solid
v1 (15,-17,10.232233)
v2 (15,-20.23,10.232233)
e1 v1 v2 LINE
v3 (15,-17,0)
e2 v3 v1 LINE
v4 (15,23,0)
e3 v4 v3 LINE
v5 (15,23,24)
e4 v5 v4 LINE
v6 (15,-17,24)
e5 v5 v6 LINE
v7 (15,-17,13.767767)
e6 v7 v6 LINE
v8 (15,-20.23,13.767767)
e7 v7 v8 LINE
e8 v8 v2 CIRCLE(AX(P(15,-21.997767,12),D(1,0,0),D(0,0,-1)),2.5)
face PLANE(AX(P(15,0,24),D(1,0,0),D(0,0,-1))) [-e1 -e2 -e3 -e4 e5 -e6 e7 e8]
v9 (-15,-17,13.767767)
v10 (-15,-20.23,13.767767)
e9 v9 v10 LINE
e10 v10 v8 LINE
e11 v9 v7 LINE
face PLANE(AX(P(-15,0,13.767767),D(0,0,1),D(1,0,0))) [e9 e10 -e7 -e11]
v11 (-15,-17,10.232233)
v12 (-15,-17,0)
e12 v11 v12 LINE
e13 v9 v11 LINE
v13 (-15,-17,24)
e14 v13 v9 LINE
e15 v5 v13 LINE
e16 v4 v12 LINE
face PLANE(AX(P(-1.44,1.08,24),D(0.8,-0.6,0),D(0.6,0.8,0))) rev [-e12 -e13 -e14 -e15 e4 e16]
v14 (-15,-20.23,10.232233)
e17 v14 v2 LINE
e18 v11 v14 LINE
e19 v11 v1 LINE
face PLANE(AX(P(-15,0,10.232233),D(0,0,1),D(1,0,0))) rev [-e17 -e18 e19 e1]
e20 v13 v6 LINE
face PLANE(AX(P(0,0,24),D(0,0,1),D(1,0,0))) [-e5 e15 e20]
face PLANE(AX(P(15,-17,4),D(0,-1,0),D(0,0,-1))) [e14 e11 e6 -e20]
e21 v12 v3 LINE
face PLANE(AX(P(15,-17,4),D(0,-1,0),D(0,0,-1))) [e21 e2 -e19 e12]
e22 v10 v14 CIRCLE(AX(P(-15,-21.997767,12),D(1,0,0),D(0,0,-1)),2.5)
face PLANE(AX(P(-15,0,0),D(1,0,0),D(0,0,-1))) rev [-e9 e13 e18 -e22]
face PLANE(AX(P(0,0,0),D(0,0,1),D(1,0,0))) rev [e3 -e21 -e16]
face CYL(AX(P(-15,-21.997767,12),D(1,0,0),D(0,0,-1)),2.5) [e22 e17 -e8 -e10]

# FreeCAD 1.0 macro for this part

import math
import FreeCAD as App
import Part
import Sketcher
Q = App.Units.Quantity


def add_polygon(sketch, points):
    """Adds a closed chain of lines whose ends are joined by coincident constraints."""
    first, n = sketch.GeometryCount, len(points)
    for a, b in zip(points, points[1:] + points[:1]):
        sketch.addGeometry(Part.LineSegment(App.Vector(*a, 0), App.Vector(*b, 0)), False)
    for i in range(n):
        sketch.addConstraint(Sketcher.Constraint("Coincident", first + i, 2, first + (i + 1) % n, 1))

doc = App.newDocument("Part")
body = doc.addObject("PartDesign::Body", "Body")

# Sketch on XY plane
sketch1 = body.newObject("Sketcher::SketchObject", "Sketch")
sketch1.AttachmentSupport = (doc.getObject("XY_Plane"), [""])
sketch1.MapMode = "FlatFace"
add_polygon(sketch1, [(15, 23), (-15, -17), (-15, -23), (15, -23)])  # lines 0-3
sketch1.addConstraint([
    Sketcher.Constraint("Vertical", 1),
    Sketcher.Constraint("Horizontal", 2),
    Sketcher.Constraint("Vertical", 3),
    Sketcher.Constraint("Symmetric", 1, 2, 3, 2, -1, 1),
    Sketcher.Constraint("DistanceX", 2, 1, 2, 2, Q("30 mm")),
    Sketcher.Constraint("DistanceY", 1, 2, 1, 1, Q("6 mm")),
    Sketcher.Constraint("DistanceY", 3, 1, 3, 2, Q("46 mm")),
])
pad1 = body.newObject("PartDesign::Pad", "Pad")
pad1.Profile = sketch1
pad1.Length = 24

# Sketch on YZ plane
sketch2 = body.newObject("Sketcher::SketchObject", "Sketch001")
sketch2.AttachmentSupport = (doc.getObject("YZ_Plane"), [""])
sketch2.MapMode = "FlatFace"
sketch2.AttachmentOffset = App.Placement(App.Vector(0, 0, -15), App.Rotation())
add_polygon(sketch2, [(-17, 4), (-23, 4), (-23, 20), (-17, 20)])  # lines 0-3
sketch2.addConstraint([
    Sketcher.Constraint("Horizontal", 0),
    Sketcher.Constraint("Vertical", 1),
    Sketcher.Constraint("Horizontal", 2),
    Sketcher.Constraint("Vertical", 3),
    Sketcher.Constraint("DistanceX", 0, 2, 0, 1, Q("6 mm")),
    Sketcher.Constraint("DistanceY", 1, 1, 1, 2, Q("16 mm")),
    Sketcher.Constraint("DistanceX", 0, 2, -1, 1, Q("23 mm")),
    Sketcher.Constraint("DistanceY", -1, 1, 0, 2, Q("4 mm")),
])
pocket1 = body.newObject("PartDesign::Pocket", "Pocket")
pocket1.Profile = sketch2
pocket1.Type = "ThroughAll"
pocket1.Reversed = True

# Sketch on YZ plane
sketch3 = body.newObject("Sketcher::SketchObject", "Sketch002")
sketch3.AttachmentSupport = (doc.getObject("YZ_Plane"), [""])
sketch3.MapMode = "FlatFace"
sketch3.AttachmentOffset = App.Placement(App.Vector(0, 0, -15), App.Rotation())
add_polygon(sketch3, [(-23, 0), (-27, 0), (-27, 4), (-23, 4)])  # lines 0-3
add_polygon(sketch3, [(-23, 20), (-27, 20), (-27, 24), (-23, 24)])  # lines 4-7
sketch3.addConstraint([
    Sketcher.Constraint("Horizontal", 0),
    Sketcher.Constraint("Vertical", 1),
    Sketcher.Constraint("Horizontal", 2),
    Sketcher.Constraint("Vertical", 3),
    Sketcher.Constraint("Horizontal", 4),
    Sketcher.Constraint("Vertical", 5),
    Sketcher.Constraint("Horizontal", 6),
    Sketcher.Constraint("Vertical", 7),
    Sketcher.Constraint("PointOnObject", 0, 2, -1),
    Sketcher.Constraint("Vertical", 1, 2, 4, 2),
    Sketcher.Constraint("Vertical", 3, 2, 6, 2),
    Sketcher.Constraint("Equal", 6, 1),
    Sketcher.Constraint("Equal", 3, 5),
    Sketcher.Constraint("DistanceX", 0, 2, 0, 1, Q("4 mm")),
    Sketcher.Constraint("DistanceX", 0, 2, -1, 1, Q("27 mm")),
    Sketcher.Constraint("DistanceY", -1, 1, 4, 2, Q("20 mm")),
])
pad2 = body.newObject("PartDesign::Pad", "Pad001")
pad2.Profile = sketch3
pad2.Length = 30

# Sketch on XZ plane
sketch4 = body.newObject("Sketcher::SketchObject", "Sketch003")
sketch4.AttachmentSupport = (doc.getObject("XZ_Plane"), [""])
sketch4.MapMode = "FlatFace"
sketch4.AttachmentOffset = App.Placement(App.Vector(0, 0, 17), App.Rotation())
add_polygon(sketch4, [(-15, 14), (-15, 10), (11, 10), (11, 14)])  # lines 0-3
sketch4.addConstraint([
    Sketcher.Constraint("Vertical", 0),
    Sketcher.Constraint("Horizontal", 1),
    Sketcher.Constraint("Vertical", 2),
    Sketcher.Constraint("Horizontal", 3),
    Sketcher.Constraint("DistanceX", 1, 1, 1, 2, Q("26 mm")),
    Sketcher.Constraint("DistanceY", 0, 2, 0, 1, Q("4 mm")),
    Sketcher.Constraint("DistanceX", 0, 2, -1, 1, Q("15 mm")),
    Sketcher.Constraint("DistanceY", -1, 1, 0, 2, Q("10 mm")),
])
pad3 = body.newObject("PartDesign::Pad", "Pad002")
pad3.Profile = sketch4
pad3.Length = 10

# Sketch on YZ plane
sketch5 = body.newObject("Sketcher::SketchObject", "Sketch004")
sketch5.AttachmentSupport = (doc.getObject("YZ_Plane"), [""])
sketch5.MapMode = "FlatFace"
sketch5.AttachmentOffset = App.Placement(App.Vector(0, 0, 15), App.Rotation())
add_polygon(sketch5, [(-17, 4), (-27, 4), (-27, 0), (-17, 0)])  # lines 0-3
add_polygon(sketch5, [(-17, 24), (-27, 24), (-27, 20), (-17, 20)])  # lines 4-7
sketch5.addConstraint([
    Sketcher.Constraint("Horizontal", 0),
    Sketcher.Constraint("Vertical", 1),
    Sketcher.Constraint("Horizontal", 2),
    Sketcher.Constraint("Vertical", 3),
    Sketcher.Constraint("Horizontal", 4),
    Sketcher.Constraint("Vertical", 5),
    Sketcher.Constraint("Horizontal", 6),
    Sketcher.Constraint("Vertical", 7),
    Sketcher.Constraint("PointOnObject", 1, 2, -1),
    Sketcher.Constraint("Vertical", 1, 2, 4, 2),
    Sketcher.Constraint("Vertical", 3, 2, 6, 2),
    Sketcher.Constraint("Equal", 3, 5),
    Sketcher.Constraint("DistanceX", 0, 2, 0, 1, Q("10 mm")),
    Sketcher.Constraint("DistanceY", 1, 2, 1, 1, Q("4 mm")),
    Sketcher.Constraint("DistanceX", 0, 2, -1, 1, Q("27 mm")),
    Sketcher.Constraint("DistanceY", -1, 1, 4, 2, Q("24 mm")),
])
pocket2 = body.newObject("PartDesign::Pocket", "Pocket001")
pocket2.Profile = sketch5
pocket2.Type = "ThroughAll"

# Sketch on YZ plane
sketch6 = body.newObject("Sketcher::SketchObject", "Sketch005")
sketch6.AttachmentSupport = (doc.getObject("YZ_Plane"), [""])
sketch6.MapMode = "FlatFace"
sketch6.AttachmentOffset = App.Placement(App.Vector(0, 0, -15), App.Rotation())
add_polygon(sketch6, [(-17, 10), (-27, 10), (-27, 14), (-17, 14)])  # lines 0-3
sketch6.addConstraint([
    Sketcher.Constraint("Horizontal", 0),
    Sketcher.Constraint("Vertical", 1),
    Sketcher.Constraint("Horizontal", 2),
    Sketcher.Constraint("Vertical", 3),
    Sketcher.Constraint("DistanceX", 0, 2, 0, 1, Q("10 mm")),
    Sketcher.Constraint("DistanceY", 1, 1, 1, 2, Q("4 mm")),
    Sketcher.Constraint("DistanceX", 0, 2, -1, 1, Q("27 mm")),
    Sketcher.Constraint("DistanceY", -1, 1, 0, 2, Q("10 mm")),
])
pocket3 = body.newObject("PartDesign::Pocket", "Pocket002")
pocket3.Profile = sketch6
pocket3.Type = "ThroughAll"
pocket3.Reversed = True

# Sketch on YZ plane
sketch7 = body.newObject("Sketcher::SketchObject", "Sketch006")
sketch7.AttachmentSupport = (doc.getObject("YZ_Plane"), [""])
sketch7.MapMode = "FlatFace"
sketch7.AttachmentOffset = App.Placement(App.Vector(0, 0, 15), App.Rotation())
add_polygon(sketch7, [(-17, 13.6), (-20.5, 13.6), (-20.5, 10.4), (-17, 10.4)])  # lines 0-3
sketch7.addConstraint([
    Sketcher.Constraint("Horizontal", 0),
    Sketcher.Constraint("Vertical", 1),
    Sketcher.Constraint("Horizontal", 2),
    Sketcher.Constraint("Vertical", 3),
    Sketcher.Constraint("DistanceX", 2, 2, -1, 1, Q("17 mm")),
    Sketcher.Constraint("DistanceX", 0, 2, 0, 1, Q("3.54 mm")),
    Sketcher.Constraint("DistanceY", 1, 2, 1, 1, Q("3.23 mm")),
    Sketcher.Constraint("DistanceY", -1, 1, 0, 2, Q("13.615 mm")),
])
pad4 = body.newObject("PartDesign::Pad", "Pad003")
pad4.Profile = sketch7
pad4.Length = 30
pad4.Reversed = True

# Sketch on YZ plane
sketch8 = body.newObject("Sketcher::SketchObject", "Sketch007")
sketch8.AttachmentSupport = (doc.getObject("YZ_Plane"), [""])
sketch8.MapMode = "FlatFace"
sketch8.AttachmentOffset = App.Placement(App.Vector(0, 0, 15), App.Rotation())
add_polygon(sketch8, [(-17, 13.6), (-20.5, 13.6), (-20.5, 10.4), (-17, 10.4)])  # lines 0-3
sketch8.addConstraint([
    Sketcher.Constraint("Horizontal", 0),
    Sketcher.Constraint("Vertical", 1),
    Sketcher.Constraint("Horizontal", 2),
    Sketcher.Constraint("Vertical", 3),
    Sketcher.Constraint("DistanceX", 2, 2, -1, 1, Q("17 mm")),
    Sketcher.Constraint("DistanceX", 0, 2, 0, 1, Q("3.54 mm")),
    Sketcher.Constraint("DistanceY", 1, 2, 1, 1, Q("3.23 mm")),
    Sketcher.Constraint("DistanceY", -1, 1, 0, 2, Q("13.615 mm")),
])
pocket4 = body.newObject("PartDesign::Pocket", "Pocket003")
pocket4.Profile = sketch8
pocket4.Type = "ThroughAll"

# Sketch on YZ plane
sketch9 = body.newObject("Sketcher::SketchObject", "Sketch008")
sketch9.AttachmentSupport = (doc.getObject("YZ_Plane"), [""])
sketch9.MapMode = "FlatFace"
sketch9.AttachmentOffset = App.Placement(App.Vector(0, 0, 15), App.Rotation())
sketch9.addGeometry([
    Part.ArcOfCircle(Part.Circle(App.Vector(-22, 12, 0), App.Vector(0, 0, 1), 2.5), math.radians(45), math.radians(270)),  # 0
    Part.ArcOfCircle(Part.Circle(App.Vector(-22, 12, 0), App.Vector(0, 0, 1), 2.5), math.radians(-90), math.radians(-45)),  # 1
    Part.LineSegment(App.Vector(-20.2, 10.2, 0), App.Vector(-17, 10.2, 0)),  # 2
    Part.LineSegment(App.Vector(-17, 10.2, 0), App.Vector(-17, 13.8, 0)),  # 3
    Part.LineSegment(App.Vector(-17, 13.8, 0), App.Vector(-20.2, 13.8, 0)),  # 4
], False)
sketch9.addConstraint([
    Sketcher.Constraint("Tangent", 0, 2, 1, 1),
    Sketcher.Constraint("Coincident", 1, 2, 2, 1),
    Sketcher.Constraint("Coincident", 2, 2, 3, 1),
    Sketcher.Constraint("Coincident", 3, 2, 4, 1),
    Sketcher.Constraint("Coincident", 4, 2, 0, 1),
    Sketcher.Constraint("Horizontal", 2),
    Sketcher.Constraint("Vertical", 3),
    Sketcher.Constraint("Horizontal", 4),
    Sketcher.Constraint("Equal", 0, 1),
    Sketcher.Constraint("Vertical", 1, 3, 0, 2),
    Sketcher.Constraint("Vertical", 1, 2, 4, 2),
    Sketcher.Constraint("Radius", 0, Q("2.5 mm")),
    Sketcher.Constraint("DistanceY", -1, 1, 0, 3, Q("12 mm")),
    Sketcher.Constraint("DistanceX", 2, 2, -1, 1, Q("17 mm")),
    Sketcher.Constraint("DistanceX", 2, 1, 2, 2, Q("3.23 mm")),
    Sketcher.Constraint("DistanceY", 3, 1, 3, 2, Q("3.535534 mm")),
])
pad5 = body.newObject("PartDesign::Pad", "Pad004")
pad5.Profile = sketch9
pad5.Length = 30
pad5.Reversed = True
body2 = doc.addObject("PartDesign::Body", "Body001")

# Sketch on YZ plane
sketch10 = body2.newObject("Sketcher::SketchObject", "Sketch009")
sketch10.AttachmentSupport = (doc.getObject("YZ_Plane001"), [""])
sketch10.MapMode = "FlatFace"
sketch10.AttachmentOffset = App.Placement(App.Vector(0, 0, 15), App.Rotation())
sketch10.addGeometry(Part.Circle(App.Vector(-21, 12, 0), App.Vector(0, 0, 1), 4), False)
sketch10.addConstraint([
    Sketcher.Constraint("Diameter", 0, Q("8 mm")),
    Sketcher.Constraint("DistanceX", 0, 3, -1, 1, Q("21 mm")),
    Sketcher.Constraint("DistanceY", -1, 1, 0, 3, Q("12 mm")),
])
pad6 = body2.newObject("PartDesign::Pad", "Pad005")
pad6.Profile = sketch10
pad6.Length = 30
pad6.Reversed = True

# Sketch on YZ plane
sketch11 = body2.newObject("Sketcher::SketchObject", "Sketch010")
sketch11.AttachmentSupport = (doc.getObject("YZ_Plane001"), [""])
sketch11.MapMode = "FlatFace"
sketch11.AttachmentOffset = App.Placement(App.Vector(0, 0, 15), App.Rotation())
sketch11.addGeometry(Part.Circle(App.Vector(-21, 12, 0), App.Vector(0, 0, 1), 4), False)
sketch11.addConstraint([
    Sketcher.Constraint("Diameter", 0, Q("8 mm")),
    Sketcher.Constraint("DistanceX", 0, 3, -1, 1, Q("21 mm")),
    Sketcher.Constraint("DistanceY", -1, 1, 0, 3, Q("12 mm")),
])
pocket5 = body2.newObject("PartDesign::Pocket", "Pocket004")
pocket5.Profile = sketch11
pocket5.Length = 4

# Sketch on YZ plane
sketch12 = body2.newObject("Sketcher::SketchObject", "Sketch011")
sketch12.AttachmentSupport = (doc.getObject("YZ_Plane001"), [""])
sketch12.MapMode = "FlatFace"
sketch12.AttachmentOffset = App.Placement(App.Vector(0, 0, 11), App.Rotation())
sketch12.addGeometry(Part.Circle(App.Vector(-21, 12, 0), App.Vector(0, 0, 1), 4), False)
sketch12.addConstraint([
    Sketcher.Constraint("Diameter", 0, Q("8 mm")),
    Sketcher.Constraint("DistanceX", 0, 3, -1, 1, Q("21 mm")),
    Sketcher.Constraint("DistanceY", -1, 1, 0, 3, Q("12 mm")),
])
pocket6 = body2.newObject("PartDesign::Pocket", "Pocket005")
pocket6.Profile = sketch12
pocket6.Type = "ThroughAll"

doc.recompute()
